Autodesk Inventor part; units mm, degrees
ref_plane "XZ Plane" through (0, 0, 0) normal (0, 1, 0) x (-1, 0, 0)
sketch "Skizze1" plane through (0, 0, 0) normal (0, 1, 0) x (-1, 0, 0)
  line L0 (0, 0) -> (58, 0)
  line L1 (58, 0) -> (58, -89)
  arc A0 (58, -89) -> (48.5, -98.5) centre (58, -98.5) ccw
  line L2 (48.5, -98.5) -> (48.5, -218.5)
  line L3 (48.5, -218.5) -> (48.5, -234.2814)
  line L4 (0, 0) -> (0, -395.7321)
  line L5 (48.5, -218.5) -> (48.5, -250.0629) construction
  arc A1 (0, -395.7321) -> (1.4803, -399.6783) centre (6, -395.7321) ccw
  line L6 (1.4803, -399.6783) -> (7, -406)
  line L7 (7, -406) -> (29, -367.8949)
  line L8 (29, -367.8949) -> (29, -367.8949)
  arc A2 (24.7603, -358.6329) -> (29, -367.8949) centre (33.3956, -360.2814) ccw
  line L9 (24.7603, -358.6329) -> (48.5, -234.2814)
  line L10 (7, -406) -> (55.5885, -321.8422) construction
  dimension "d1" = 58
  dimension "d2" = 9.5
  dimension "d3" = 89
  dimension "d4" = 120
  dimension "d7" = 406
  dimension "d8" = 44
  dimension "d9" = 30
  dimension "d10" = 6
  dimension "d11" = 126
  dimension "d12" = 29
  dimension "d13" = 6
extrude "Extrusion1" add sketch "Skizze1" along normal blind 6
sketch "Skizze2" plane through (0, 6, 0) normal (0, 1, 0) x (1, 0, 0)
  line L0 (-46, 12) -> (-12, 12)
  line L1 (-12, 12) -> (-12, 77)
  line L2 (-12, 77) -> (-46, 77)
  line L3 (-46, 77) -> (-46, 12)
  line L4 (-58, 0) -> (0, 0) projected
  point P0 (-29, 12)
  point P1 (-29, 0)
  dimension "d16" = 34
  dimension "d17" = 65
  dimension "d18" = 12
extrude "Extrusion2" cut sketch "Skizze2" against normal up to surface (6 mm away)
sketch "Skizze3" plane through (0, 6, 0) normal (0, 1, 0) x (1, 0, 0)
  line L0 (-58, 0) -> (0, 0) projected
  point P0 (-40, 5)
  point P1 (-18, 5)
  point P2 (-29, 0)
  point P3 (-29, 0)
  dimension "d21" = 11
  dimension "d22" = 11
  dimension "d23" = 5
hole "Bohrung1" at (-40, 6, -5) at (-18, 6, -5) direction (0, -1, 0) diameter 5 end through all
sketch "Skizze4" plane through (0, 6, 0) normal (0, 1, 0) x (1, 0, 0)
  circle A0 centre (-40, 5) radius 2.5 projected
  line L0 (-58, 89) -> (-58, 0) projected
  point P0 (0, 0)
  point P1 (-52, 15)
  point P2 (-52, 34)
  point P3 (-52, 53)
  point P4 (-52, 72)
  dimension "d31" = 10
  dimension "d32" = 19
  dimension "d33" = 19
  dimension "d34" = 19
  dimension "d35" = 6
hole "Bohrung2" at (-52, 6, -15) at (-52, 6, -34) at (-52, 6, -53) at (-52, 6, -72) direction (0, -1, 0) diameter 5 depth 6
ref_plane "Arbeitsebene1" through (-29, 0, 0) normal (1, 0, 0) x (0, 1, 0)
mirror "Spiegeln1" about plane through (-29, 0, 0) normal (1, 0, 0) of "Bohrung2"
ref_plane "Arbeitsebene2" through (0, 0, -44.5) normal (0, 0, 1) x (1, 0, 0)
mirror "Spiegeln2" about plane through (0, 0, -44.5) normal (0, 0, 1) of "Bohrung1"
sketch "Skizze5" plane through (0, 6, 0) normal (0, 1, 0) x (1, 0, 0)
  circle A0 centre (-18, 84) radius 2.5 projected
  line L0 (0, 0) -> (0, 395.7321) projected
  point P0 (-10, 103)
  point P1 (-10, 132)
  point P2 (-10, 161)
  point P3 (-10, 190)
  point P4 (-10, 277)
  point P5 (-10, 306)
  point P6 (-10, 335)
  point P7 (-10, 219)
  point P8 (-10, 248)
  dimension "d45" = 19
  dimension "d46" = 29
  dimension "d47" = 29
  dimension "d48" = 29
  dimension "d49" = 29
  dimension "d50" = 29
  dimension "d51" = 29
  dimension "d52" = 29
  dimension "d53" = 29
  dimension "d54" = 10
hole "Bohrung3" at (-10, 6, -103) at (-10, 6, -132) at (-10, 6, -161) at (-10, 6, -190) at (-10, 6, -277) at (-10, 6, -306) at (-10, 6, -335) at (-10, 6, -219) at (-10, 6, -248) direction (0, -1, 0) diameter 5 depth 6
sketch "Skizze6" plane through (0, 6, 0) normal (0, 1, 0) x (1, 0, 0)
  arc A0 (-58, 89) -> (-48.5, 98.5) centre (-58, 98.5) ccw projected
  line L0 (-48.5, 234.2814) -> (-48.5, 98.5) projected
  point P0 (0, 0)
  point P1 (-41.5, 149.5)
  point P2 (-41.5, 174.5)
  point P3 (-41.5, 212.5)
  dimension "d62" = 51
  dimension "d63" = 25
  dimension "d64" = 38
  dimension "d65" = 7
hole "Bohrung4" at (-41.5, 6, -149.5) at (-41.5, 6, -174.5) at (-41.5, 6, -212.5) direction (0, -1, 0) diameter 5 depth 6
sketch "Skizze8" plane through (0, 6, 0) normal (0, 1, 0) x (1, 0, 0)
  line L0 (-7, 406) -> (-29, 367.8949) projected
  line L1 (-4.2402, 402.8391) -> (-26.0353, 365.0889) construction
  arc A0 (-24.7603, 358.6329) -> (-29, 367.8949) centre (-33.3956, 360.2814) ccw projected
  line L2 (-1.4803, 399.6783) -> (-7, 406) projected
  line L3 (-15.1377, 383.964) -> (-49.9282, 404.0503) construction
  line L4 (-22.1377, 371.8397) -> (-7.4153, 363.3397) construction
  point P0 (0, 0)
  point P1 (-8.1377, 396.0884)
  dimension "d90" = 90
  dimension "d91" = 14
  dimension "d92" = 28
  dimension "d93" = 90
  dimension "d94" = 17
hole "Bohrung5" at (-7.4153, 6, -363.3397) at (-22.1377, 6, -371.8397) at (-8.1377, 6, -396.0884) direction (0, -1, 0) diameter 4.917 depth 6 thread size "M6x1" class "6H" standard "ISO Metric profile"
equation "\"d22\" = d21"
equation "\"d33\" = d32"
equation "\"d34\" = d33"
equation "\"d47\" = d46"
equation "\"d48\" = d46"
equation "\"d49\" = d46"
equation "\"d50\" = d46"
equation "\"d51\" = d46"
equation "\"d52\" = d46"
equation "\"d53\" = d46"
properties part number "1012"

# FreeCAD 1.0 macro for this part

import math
import FreeCAD as App
import Part
import Sketcher

V = App.Vector
Q = App.Units.Quantity

doc = App.newDocument("Part")
params = doc.addObject("Spreadsheet::Sheet", "Params")
for row, (alias, value) in enumerate([
    ("sketch1_radius", "6 mm"),
    ("sketch1_radius2", "9.5 mm"),
    ("sketch1_width", "58 mm"),
    ("sketch1_height", "89 mm"),
    ("sketch1_length", "44 mm"),
    ("pad1_length", "6 mm"),
    ("sketch2_width", "34 mm"),
    ("sketch2_height", "65 mm"),
    ("pocket1_length", "6 mm"),
    ("sketch3_diameter", "5 mm"),
    ("hole_diameter", "5 mm"),
    ("sketch4_diameter", "5 mm"),
    ("hole2_diameter", "5 mm"),
    ("hole2_depth", "6 mm"),
    ("sketch5_diameter", "5 mm"),
    ("hole3_diameter", "5 mm"),
    ("hole3_depth", "6 mm"),
    ("sketch6_diameter", "5 mm"),
    ("hole4_diameter", "5 mm"),
    ("hole4_depth", "6 mm"),
    ("hole5_diameter", "4.917 mm"),
    ("hole5_depth", "6 mm"),
], start=1):
    params.set(f"A{row}", alias)
    params.set(f"B{row}", "=" + value)
    params.setAlias(f"B{row}", alias)

body = doc.addObject("PartDesign::Body", "Body")

# Sketch on XZ plane
sketch1 = doc.addObject("Sketcher::SketchObject", "Sketch")
body.addObject(sketch1)
sketch1.AttachmentSupport = (doc.XZ_Plane, [""])
sketch1.MapMode = "FlatFace"
sketch1.addGeometry([
    Part.LineSegment(V(-58, 0, 0), V(0, 0, 0)),  # 0
    Part.LineSegment(V(0, 0, 0), V(0, -395.7321, 0)),  # 1
    Part.ArcOfCircle(Part.Circle(V(-6, -395.7321, 0), V(0, 0, 1), 6), math.radians(-41.12457), math.radians(0)),  # 2
    Part.LineSegment(V(-1.4803, -399.6783, 0), V(-7, -406, 0)),  # 3
    Part.LineSegment(V(-7, -406, 0), V(-29, -367.8949, 0)),  # 4
    Part.ArcOfCircle(Part.Circle(V(-33.3956, -360.2814, 0), V(0, 0, 1), 8.791243), math.radians(-60.000318), math.radians(10.807864)),  # 5
    Part.LineSegment(V(-24.7603, -358.6329, 0), V(-48.5, -234.2814, 0)),  # 6
    Part.LineSegment(V(-48.5, -234.2814, 0), V(-48.5, -98.5, 0)),  # 7
    Part.ArcOfCircle(Part.Circle(V(-58, -98.5, 0), V(0, 0, 1), 9.5), math.radians(0), math.radians(90)),  # 8
    Part.LineSegment(V(-58, -89, 0), V(-58, 0, 0)),  # 9
], False)
sketch1.addConstraint([
    Sketcher.Constraint("Coincident", 0, 2, 1, 1),
    Sketcher.Constraint("Tangent", 1, 2, 2, 2),
    Sketcher.Constraint("Tangent", 2, 1, 3, 1),
    Sketcher.Constraint("Coincident", 3, 2, 4, 1),
    Sketcher.Constraint("Coincident", 4, 2, 5, 1),
    Sketcher.Constraint("Tangent", 5, 2, 6, 1),
    Sketcher.Constraint("Coincident", 6, 2, 7, 1),
    Sketcher.Constraint("Tangent", 7, 2, 8, 1),
    Sketcher.Constraint("Coincident", 8, 2, 9, 1),
    Sketcher.Constraint("Coincident", 9, 2, 0, 1),
    Sketcher.Constraint("Horizontal", 0),
    Sketcher.Constraint("Vertical", 1),
    Sketcher.Constraint("Vertical", 7),
    Sketcher.Constraint("Vertical", 9),
    Sketcher.Constraint("Coincident", 0, 2, -1, 1),
    Sketcher.Constraint("Radius", 2, 6.0),
    Sketcher.Constraint("Radius", 8, 9.5),
    Sketcher.Constraint("DistanceX", 0, 1, 0, 2, 58.0),
    Sketcher.Constraint("DistanceY", 9, 1, 9, 2, 89.0),
    Sketcher.Constraint("Angle", 4, Q("120 deg")),
    Sketcher.Constraint("Distance", 4, 44.0),
    Sketcher.Constraint("DistanceX", 8, 3, -1, 1, 58.0),
    Sketcher.Constraint("DistanceY", 3, 2, -1, 1, 406.0),
    Sketcher.Constraint("DistanceX", 4, 2, -1, 1, 29.0),
    Sketcher.Constraint("DistanceY", 5, 3, 6, 2, 126.0),
    Sketcher.Constraint("Radius", 5, 8.7912),
    Sketcher.Constraint("DistanceY", 1, 2, 1, 1, 395.732),
    Sketcher.Constraint("DistanceX", 5, 2, 2, 1, 23.28),
])
sketch1.setExpression("Constraints[15]", "Params.sketch1_radius")
sketch1.setExpression("Constraints[16]", "Params.sketch1_radius2")
sketch1.setExpression("Constraints[17]", "Params.sketch1_width")
sketch1.setExpression("Constraints[18]", "Params.sketch1_height")
sketch1.setExpression("Constraints[20]", "Params.sketch1_length")
pad1 = doc.addObject("PartDesign::Pad", "Pad")
body.addObject(pad1)
pad1.Profile = sketch1
pad1.setExpression("Length", "Params.pad1_length")
pad1.Reversed = True

# Sketch on XZ plane
sketch2 = doc.addObject("Sketcher::SketchObject", "Sketch001")
body.addObject(sketch2)
sketch2.AttachmentSupport = (doc.XZ_Plane, [""])
sketch2.MapMode = "FlatFace"
sketch2.AttachmentOffset = App.Placement(V(0, 0, -6), App.Rotation())
sketch2.addGeometry([
    Part.LineSegment(V(-46, -77, 0), V(-46, -12, 0)),
    Part.LineSegment(V(-46, -12, 0), V(-12, -12, 0)),
    Part.LineSegment(V(-12, -12, 0), V(-12, -77, 0)),
    Part.LineSegment(V(-12, -77, 0), V(-46, -77, 0)),
], False)
sketch2.addConstraint([
    Sketcher.Constraint("Coincident", 0, 2, 1, 1),
    Sketcher.Constraint("Coincident", 1, 2, 2, 1),
    Sketcher.Constraint("Coincident", 2, 2, 3, 1),
    Sketcher.Constraint("Coincident", 3, 2, 0, 1),
    Sketcher.Constraint("Vertical", 0),
    Sketcher.Constraint("Horizontal", 1),
    Sketcher.Constraint("Vertical", 2),
    Sketcher.Constraint("Horizontal", 3),
    Sketcher.Constraint("DistanceX", 1, 1, 1, 2, 34.0),
    Sketcher.Constraint("DistanceY", 0, 1, 0, 2, 65.0),
    Sketcher.Constraint("DistanceY", 0, 2, -1, 1, 12.0),
    Sketcher.Constraint("DistanceX", 1, 2, -1, 1, 12.0),
])
sketch2.setExpression("Constraints[8]", "Params.sketch2_width")
sketch2.setExpression("Constraints[9]", "Params.sketch2_height")
pocket1 = doc.addObject("PartDesign::Pocket", "Pocket")
body.addObject(pocket1)
pocket1.Profile = sketch2
pocket1.setExpression("Length", "Params.pocket1_length")
pocket1.Reversed = True

# Sketch on XZ plane
sketch3 = doc.addObject("Sketcher::SketchObject", "Sketch002")
body.addObject(sketch3)
sketch3.AttachmentSupport = (doc.XZ_Plane, [""])
sketch3.MapMode = "FlatFace"
sketch3.AttachmentOffset = App.Placement(V(0, 0, -6), App.Rotation())
sketch3.addGeometry([
    Part.Circle(V(-40, -5, 0), V(0, 0, 1), 2.5),
    Part.Circle(V(-18, -5, 0), V(0, 0, 1), 2.5),
], False)
sketch3.addConstraint([
    Sketcher.Constraint("Equal", 0, 1),
    Sketcher.Constraint("Horizontal", 0, 3, 1, 3),
    Sketcher.Constraint("Diameter", 0, 5.0),
    Sketcher.Constraint("DistanceX", 0, 3, -1, 1, 40.0),
    Sketcher.Constraint("DistanceY", 0, 3, -1, 1, 5.0),
    Sketcher.Constraint("DistanceX", 1, 3, -1, 1, 18.0),
])
sketch3.setExpression("Constraints[2]", "Params.sketch3_diameter")
doc.recompute()
hole = doc.addObject("PartDesign::Hole", "Hole")
body.addObject(hole)
hole.Profile = sketch3
hole.ThreadType = "None"
hole.setExpression("Diameter", "Params.hole_diameter")
hole.DepthType = "ThroughAll"
hole.Reversed = True

# Sketch on XZ plane
sketch4 = doc.addObject("Sketcher::SketchObject", "Sketch003")
body.addObject(sketch4)
sketch4.AttachmentSupport = (doc.XZ_Plane, [""])
sketch4.MapMode = "FlatFace"
sketch4.AttachmentOffset = App.Placement(V(0, 0, -6), App.Rotation())
sketch4.addGeometry([
    Part.Circle(V(-52, -15, 0), V(0, 0, 1), 2.5),
    Part.Circle(V(-52, -34, 0), V(0, 0, 1), 2.5),
    Part.Circle(V(-52, -53, 0), V(0, 0, 1), 2.5),
    Part.Circle(V(-52, -72, 0), V(0, 0, 1), 2.5),
], False)
sketch4.addConstraint([
    Sketcher.Constraint("Equal", 0, 1),
    Sketcher.Constraint("Equal", 1, 2),
    Sketcher.Constraint("Equal", 2, 3),
    Sketcher.Constraint("Vertical", 0, 3, 1, 3),
    Sketcher.Constraint("Vertical", 1, 3, 2, 3),
    Sketcher.Constraint("Vertical", 2, 3, 3, 3),
    Sketcher.Constraint("Diameter", 0, 5.0),
    Sketcher.Constraint("DistanceX", 0, 3, -1, 1, 52.0),
    Sketcher.Constraint("DistanceY", 0, 3, -1, 1, 15.0),
    Sketcher.Constraint("DistanceY", 1, 3, -1, 1, 34.0),
    Sketcher.Constraint("DistanceY", 2, 3, -1, 1, 53.0),
    Sketcher.Constraint("DistanceY", 3, 3, -1, 1, 72.0),
])
sketch4.setExpression("Constraints[6]", "Params.sketch4_diameter")
doc.recompute()
hole2 = doc.addObject("PartDesign::Hole", "Hole001")
body.addObject(hole2)
hole2.Profile = sketch4
hole2.ThreadType = "None"
hole2.setExpression("Diameter", "Params.hole2_diameter")
hole2.DepthType = "Dimension"
hole2.setExpression("Depth", "Params.hole2_depth")
hole2.DrillPoint = "Flat"
hole2.Reversed = True
doc.recompute()

datumplane = doc.addObject("PartDesign::Plane", "DatumPlane")
body.addObject(datumplane)
datumplane.AttachmentSupport = (doc.YZ_Plane, [""])
datumplane.MapMode = "FlatFace"
datumplane.AttachmentOffset = App.Placement(V(0, 0, -29), App.Rotation())
mirrored = doc.addObject("PartDesign::Mirrored", "Mirrored")
body.addObject(mirrored)
mirrored.Originals = [hole2]
mirrored.MirrorPlane = (datumplane, [""])
body.Tip = mirrored
doc.recompute()

datumplane2 = doc.addObject("PartDesign::Plane", "DatumPlane001")
body.addObject(datumplane2)
datumplane2.AttachmentSupport = (doc.XY_Plane, [""])
datumplane2.MapMode = "FlatFace"
datumplane2.AttachmentOffset = App.Placement(V(0, 0, -44.5), App.Rotation())
mirrored2 = doc.addObject("PartDesign::Mirrored", "Mirrored001")
body.addObject(mirrored2)
mirrored2.Originals = [hole]
mirrored2.MirrorPlane = (datumplane2, [""])
body.Tip = mirrored2

# Sketch on XZ plane
sketch5 = doc.addObject("Sketcher::SketchObject", "Sketch004")
body.addObject(sketch5)
sketch5.AttachmentSupport = (doc.XZ_Plane, [""])
sketch5.MapMode = "FlatFace"
sketch5.AttachmentOffset = App.Placement(V(0, 0, -6), App.Rotation())
sketch5.addGeometry([
    Part.Circle(V(-10, -103, 0), V(0, 0, 1), 2.5),  # 0
    Part.Circle(V(-10, -132, 0), V(0, 0, 1), 2.5),  # 1
    Part.Circle(V(-10, -161, 0), V(0, 0, 1), 2.5),  # 2
    Part.Circle(V(-10, -190, 0), V(0, 0, 1), 2.5),  # 3
    Part.Circle(V(-10, -277, 0), V(0, 0, 1), 2.5),  # 4
    Part.Circle(V(-10, -306, 0), V(0, 0, 1), 2.5),  # 5
    Part.Circle(V(-10, -335, 0), V(0, 0, 1), 2.5),  # 6
    Part.Circle(V(-10, -219, 0), V(0, 0, 1), 2.5),  # 7
    Part.Circle(V(-10, -248, 0), V(0, 0, 1), 2.5),  # 8
], False)
sketch5.addConstraint([
    Sketcher.Constraint("Equal", 0, 1),
    Sketcher.Constraint("Equal", 1, 2),
    Sketcher.Constraint("Equal", 2, 3),
    Sketcher.Constraint("Equal", 3, 4),
    Sketcher.Constraint("Equal", 4, 5),
    Sketcher.Constraint("Equal", 5, 6),
    Sketcher.Constraint("Equal", 6, 7),
    Sketcher.Constraint("Equal", 7, 8),
    Sketcher.Constraint("Vertical", 0, 3, 1, 3),
    Sketcher.Constraint("Vertical", 1, 3, 2, 3),
    Sketcher.Constraint("Vertical", 2, 3, 3, 3),
    Sketcher.Constraint("Vertical", 3, 3, 4, 3),
    Sketcher.Constraint("Vertical", 4, 3, 5, 3),
    Sketcher.Constraint("Vertical", 5, 3, 6, 3),
    Sketcher.Constraint("Vertical", 6, 3, 7, 3),
    Sketcher.Constraint("Vertical", 7, 3, 8, 3),
    Sketcher.Constraint("Diameter", 0, 5.0),
    Sketcher.Constraint("DistanceX", 0, 3, -1, 1, 10.0),
    Sketcher.Constraint("DistanceY", 0, 3, -1, 1, 103.0),
    Sketcher.Constraint("DistanceY", 1, 3, -1, 1, 132.0),
    Sketcher.Constraint("DistanceY", 2, 3, -1, 1, 161.0),
    Sketcher.Constraint("DistanceY", 3, 3, -1, 1, 190.0),
    Sketcher.Constraint("DistanceY", 4, 3, -1, 1, 277.0),
    Sketcher.Constraint("DistanceY", 5, 3, -1, 1, 306.0),
    Sketcher.Constraint("DistanceY", 6, 3, -1, 1, 335.0),
    Sketcher.Constraint("DistanceY", 7, 3, -1, 1, 219.0),
    Sketcher.Constraint("DistanceY", 8, 3, -1, 1, 248.0),
])
sketch5.setExpression("Constraints[16]", "Params.sketch5_diameter")
doc.recompute()
hole3 = doc.addObject("PartDesign::Hole", "Hole002")
body.addObject(hole3)
hole3.Profile = sketch5
hole3.ThreadType = "None"
hole3.setExpression("Diameter", "Params.hole3_diameter")
hole3.DepthType = "Dimension"
hole3.setExpression("Depth", "Params.hole3_depth")
hole3.DrillPoint = "Flat"
hole3.Reversed = True

# Sketch on XZ plane
sketch6 = doc.addObject("Sketcher::SketchObject", "Sketch005")
body.addObject(sketch6)
sketch6.AttachmentSupport = (doc.XZ_Plane, [""])
sketch6.MapMode = "FlatFace"
sketch6.AttachmentOffset = App.Placement(V(0, 0, -6), App.Rotation())
sketch6.addGeometry([
    Part.Circle(V(-41.5, -149.5, 0), V(0, 0, 1), 2.5),
    Part.Circle(V(-41.5, -174.5, 0), V(0, 0, 1), 2.5),
    Part.Circle(V(-41.5, -212.5, 0), V(0, 0, 1), 2.5),
], False)
sketch6.addConstraint([
    Sketcher.Constraint("Equal", 0, 1),
    Sketcher.Constraint("Equal", 1, 2),
    Sketcher.Constraint("Vertical", 0, 3, 1, 3),
    Sketcher.Constraint("Vertical", 1, 3, 2, 3),
    Sketcher.Constraint("Diameter", 0, 5.0),
    Sketcher.Constraint("DistanceY", 1, 3, 0, 3, 25.0),
    Sketcher.Constraint("DistanceY", 2, 3, 1, 3, 38.0),
    Sketcher.Constraint("DistanceX", 0, 3, -1, 1, 41.5),
    Sketcher.Constraint("DistanceY", 0, 3, -1, 1, 149.5),
])
sketch6.setExpression("Constraints[4]", "Params.sketch6_diameter")
doc.recompute()
hole4 = doc.addObject("PartDesign::Hole", "Hole003")
body.addObject(hole4)
hole4.Profile = sketch6
hole4.ThreadType = "None"
hole4.setExpression("Diameter", "Params.hole4_diameter")
hole4.DepthType = "Dimension"
hole4.setExpression("Depth", "Params.hole4_depth")
hole4.DrillPoint = "Flat"
hole4.Reversed = True

# Sketch on XZ plane
sketch7 = doc.addObject("Sketcher::SketchObject", "Sketch006")
body.addObject(sketch7)
sketch7.AttachmentSupport = (doc.XZ_Plane, [""])
sketch7.MapMode = "FlatFace"
sketch7.AttachmentOffset = App.Placement(V(0, 0, -6), App.Rotation())
sketch7.addGeometry([
    Part.Circle(V(-7.4153, -363.3397, 0), V(0, 0, 1), 2.4585),
    Part.Circle(V(-22.1377, -371.8397, 0), V(0, 0, 1), 2.4585),
    Part.Circle(V(-8.1377, -396.0884, 0), V(0, 0, 1), 2.4585),
], False)
sketch7.addConstraint([
    Sketcher.Constraint("Equal", 0, 1),
    Sketcher.Constraint("Equal", 1, 2),
    Sketcher.Constraint("Diameter", 0, 4.917),
    Sketcher.Constraint("DistanceX", 1, 3, 2, 3, 14.0),
    Sketcher.Constraint("DistanceY", 1, 3, 0, 3, 8.5),
    Sketcher.Constraint("DistanceX", 0, 3, -1, 1, 7.4153),
    Sketcher.Constraint("DistanceY", 0, 3, -1, 1, 363.3397),
    Sketcher.Constraint("DistanceX", 1, 3, -1, 1, 22.1377),
    Sketcher.Constraint("DistanceY", 2, 3, -1, 1, 396.0884),
])
doc.recompute()
hole5 = doc.addObject("PartDesign::Hole", "Hole004")
body.addObject(hole5)
hole5.Profile = sketch7
hole5.ThreadType = "None"
hole5.setExpression("Diameter", "Params.hole5_diameter")
hole5.DepthType = "Dimension"
hole5.setExpression("Depth", "Params.hole5_depth")
hole5.DrillPoint = "Flat"
hole5.Reversed = True

doc.recompute()
